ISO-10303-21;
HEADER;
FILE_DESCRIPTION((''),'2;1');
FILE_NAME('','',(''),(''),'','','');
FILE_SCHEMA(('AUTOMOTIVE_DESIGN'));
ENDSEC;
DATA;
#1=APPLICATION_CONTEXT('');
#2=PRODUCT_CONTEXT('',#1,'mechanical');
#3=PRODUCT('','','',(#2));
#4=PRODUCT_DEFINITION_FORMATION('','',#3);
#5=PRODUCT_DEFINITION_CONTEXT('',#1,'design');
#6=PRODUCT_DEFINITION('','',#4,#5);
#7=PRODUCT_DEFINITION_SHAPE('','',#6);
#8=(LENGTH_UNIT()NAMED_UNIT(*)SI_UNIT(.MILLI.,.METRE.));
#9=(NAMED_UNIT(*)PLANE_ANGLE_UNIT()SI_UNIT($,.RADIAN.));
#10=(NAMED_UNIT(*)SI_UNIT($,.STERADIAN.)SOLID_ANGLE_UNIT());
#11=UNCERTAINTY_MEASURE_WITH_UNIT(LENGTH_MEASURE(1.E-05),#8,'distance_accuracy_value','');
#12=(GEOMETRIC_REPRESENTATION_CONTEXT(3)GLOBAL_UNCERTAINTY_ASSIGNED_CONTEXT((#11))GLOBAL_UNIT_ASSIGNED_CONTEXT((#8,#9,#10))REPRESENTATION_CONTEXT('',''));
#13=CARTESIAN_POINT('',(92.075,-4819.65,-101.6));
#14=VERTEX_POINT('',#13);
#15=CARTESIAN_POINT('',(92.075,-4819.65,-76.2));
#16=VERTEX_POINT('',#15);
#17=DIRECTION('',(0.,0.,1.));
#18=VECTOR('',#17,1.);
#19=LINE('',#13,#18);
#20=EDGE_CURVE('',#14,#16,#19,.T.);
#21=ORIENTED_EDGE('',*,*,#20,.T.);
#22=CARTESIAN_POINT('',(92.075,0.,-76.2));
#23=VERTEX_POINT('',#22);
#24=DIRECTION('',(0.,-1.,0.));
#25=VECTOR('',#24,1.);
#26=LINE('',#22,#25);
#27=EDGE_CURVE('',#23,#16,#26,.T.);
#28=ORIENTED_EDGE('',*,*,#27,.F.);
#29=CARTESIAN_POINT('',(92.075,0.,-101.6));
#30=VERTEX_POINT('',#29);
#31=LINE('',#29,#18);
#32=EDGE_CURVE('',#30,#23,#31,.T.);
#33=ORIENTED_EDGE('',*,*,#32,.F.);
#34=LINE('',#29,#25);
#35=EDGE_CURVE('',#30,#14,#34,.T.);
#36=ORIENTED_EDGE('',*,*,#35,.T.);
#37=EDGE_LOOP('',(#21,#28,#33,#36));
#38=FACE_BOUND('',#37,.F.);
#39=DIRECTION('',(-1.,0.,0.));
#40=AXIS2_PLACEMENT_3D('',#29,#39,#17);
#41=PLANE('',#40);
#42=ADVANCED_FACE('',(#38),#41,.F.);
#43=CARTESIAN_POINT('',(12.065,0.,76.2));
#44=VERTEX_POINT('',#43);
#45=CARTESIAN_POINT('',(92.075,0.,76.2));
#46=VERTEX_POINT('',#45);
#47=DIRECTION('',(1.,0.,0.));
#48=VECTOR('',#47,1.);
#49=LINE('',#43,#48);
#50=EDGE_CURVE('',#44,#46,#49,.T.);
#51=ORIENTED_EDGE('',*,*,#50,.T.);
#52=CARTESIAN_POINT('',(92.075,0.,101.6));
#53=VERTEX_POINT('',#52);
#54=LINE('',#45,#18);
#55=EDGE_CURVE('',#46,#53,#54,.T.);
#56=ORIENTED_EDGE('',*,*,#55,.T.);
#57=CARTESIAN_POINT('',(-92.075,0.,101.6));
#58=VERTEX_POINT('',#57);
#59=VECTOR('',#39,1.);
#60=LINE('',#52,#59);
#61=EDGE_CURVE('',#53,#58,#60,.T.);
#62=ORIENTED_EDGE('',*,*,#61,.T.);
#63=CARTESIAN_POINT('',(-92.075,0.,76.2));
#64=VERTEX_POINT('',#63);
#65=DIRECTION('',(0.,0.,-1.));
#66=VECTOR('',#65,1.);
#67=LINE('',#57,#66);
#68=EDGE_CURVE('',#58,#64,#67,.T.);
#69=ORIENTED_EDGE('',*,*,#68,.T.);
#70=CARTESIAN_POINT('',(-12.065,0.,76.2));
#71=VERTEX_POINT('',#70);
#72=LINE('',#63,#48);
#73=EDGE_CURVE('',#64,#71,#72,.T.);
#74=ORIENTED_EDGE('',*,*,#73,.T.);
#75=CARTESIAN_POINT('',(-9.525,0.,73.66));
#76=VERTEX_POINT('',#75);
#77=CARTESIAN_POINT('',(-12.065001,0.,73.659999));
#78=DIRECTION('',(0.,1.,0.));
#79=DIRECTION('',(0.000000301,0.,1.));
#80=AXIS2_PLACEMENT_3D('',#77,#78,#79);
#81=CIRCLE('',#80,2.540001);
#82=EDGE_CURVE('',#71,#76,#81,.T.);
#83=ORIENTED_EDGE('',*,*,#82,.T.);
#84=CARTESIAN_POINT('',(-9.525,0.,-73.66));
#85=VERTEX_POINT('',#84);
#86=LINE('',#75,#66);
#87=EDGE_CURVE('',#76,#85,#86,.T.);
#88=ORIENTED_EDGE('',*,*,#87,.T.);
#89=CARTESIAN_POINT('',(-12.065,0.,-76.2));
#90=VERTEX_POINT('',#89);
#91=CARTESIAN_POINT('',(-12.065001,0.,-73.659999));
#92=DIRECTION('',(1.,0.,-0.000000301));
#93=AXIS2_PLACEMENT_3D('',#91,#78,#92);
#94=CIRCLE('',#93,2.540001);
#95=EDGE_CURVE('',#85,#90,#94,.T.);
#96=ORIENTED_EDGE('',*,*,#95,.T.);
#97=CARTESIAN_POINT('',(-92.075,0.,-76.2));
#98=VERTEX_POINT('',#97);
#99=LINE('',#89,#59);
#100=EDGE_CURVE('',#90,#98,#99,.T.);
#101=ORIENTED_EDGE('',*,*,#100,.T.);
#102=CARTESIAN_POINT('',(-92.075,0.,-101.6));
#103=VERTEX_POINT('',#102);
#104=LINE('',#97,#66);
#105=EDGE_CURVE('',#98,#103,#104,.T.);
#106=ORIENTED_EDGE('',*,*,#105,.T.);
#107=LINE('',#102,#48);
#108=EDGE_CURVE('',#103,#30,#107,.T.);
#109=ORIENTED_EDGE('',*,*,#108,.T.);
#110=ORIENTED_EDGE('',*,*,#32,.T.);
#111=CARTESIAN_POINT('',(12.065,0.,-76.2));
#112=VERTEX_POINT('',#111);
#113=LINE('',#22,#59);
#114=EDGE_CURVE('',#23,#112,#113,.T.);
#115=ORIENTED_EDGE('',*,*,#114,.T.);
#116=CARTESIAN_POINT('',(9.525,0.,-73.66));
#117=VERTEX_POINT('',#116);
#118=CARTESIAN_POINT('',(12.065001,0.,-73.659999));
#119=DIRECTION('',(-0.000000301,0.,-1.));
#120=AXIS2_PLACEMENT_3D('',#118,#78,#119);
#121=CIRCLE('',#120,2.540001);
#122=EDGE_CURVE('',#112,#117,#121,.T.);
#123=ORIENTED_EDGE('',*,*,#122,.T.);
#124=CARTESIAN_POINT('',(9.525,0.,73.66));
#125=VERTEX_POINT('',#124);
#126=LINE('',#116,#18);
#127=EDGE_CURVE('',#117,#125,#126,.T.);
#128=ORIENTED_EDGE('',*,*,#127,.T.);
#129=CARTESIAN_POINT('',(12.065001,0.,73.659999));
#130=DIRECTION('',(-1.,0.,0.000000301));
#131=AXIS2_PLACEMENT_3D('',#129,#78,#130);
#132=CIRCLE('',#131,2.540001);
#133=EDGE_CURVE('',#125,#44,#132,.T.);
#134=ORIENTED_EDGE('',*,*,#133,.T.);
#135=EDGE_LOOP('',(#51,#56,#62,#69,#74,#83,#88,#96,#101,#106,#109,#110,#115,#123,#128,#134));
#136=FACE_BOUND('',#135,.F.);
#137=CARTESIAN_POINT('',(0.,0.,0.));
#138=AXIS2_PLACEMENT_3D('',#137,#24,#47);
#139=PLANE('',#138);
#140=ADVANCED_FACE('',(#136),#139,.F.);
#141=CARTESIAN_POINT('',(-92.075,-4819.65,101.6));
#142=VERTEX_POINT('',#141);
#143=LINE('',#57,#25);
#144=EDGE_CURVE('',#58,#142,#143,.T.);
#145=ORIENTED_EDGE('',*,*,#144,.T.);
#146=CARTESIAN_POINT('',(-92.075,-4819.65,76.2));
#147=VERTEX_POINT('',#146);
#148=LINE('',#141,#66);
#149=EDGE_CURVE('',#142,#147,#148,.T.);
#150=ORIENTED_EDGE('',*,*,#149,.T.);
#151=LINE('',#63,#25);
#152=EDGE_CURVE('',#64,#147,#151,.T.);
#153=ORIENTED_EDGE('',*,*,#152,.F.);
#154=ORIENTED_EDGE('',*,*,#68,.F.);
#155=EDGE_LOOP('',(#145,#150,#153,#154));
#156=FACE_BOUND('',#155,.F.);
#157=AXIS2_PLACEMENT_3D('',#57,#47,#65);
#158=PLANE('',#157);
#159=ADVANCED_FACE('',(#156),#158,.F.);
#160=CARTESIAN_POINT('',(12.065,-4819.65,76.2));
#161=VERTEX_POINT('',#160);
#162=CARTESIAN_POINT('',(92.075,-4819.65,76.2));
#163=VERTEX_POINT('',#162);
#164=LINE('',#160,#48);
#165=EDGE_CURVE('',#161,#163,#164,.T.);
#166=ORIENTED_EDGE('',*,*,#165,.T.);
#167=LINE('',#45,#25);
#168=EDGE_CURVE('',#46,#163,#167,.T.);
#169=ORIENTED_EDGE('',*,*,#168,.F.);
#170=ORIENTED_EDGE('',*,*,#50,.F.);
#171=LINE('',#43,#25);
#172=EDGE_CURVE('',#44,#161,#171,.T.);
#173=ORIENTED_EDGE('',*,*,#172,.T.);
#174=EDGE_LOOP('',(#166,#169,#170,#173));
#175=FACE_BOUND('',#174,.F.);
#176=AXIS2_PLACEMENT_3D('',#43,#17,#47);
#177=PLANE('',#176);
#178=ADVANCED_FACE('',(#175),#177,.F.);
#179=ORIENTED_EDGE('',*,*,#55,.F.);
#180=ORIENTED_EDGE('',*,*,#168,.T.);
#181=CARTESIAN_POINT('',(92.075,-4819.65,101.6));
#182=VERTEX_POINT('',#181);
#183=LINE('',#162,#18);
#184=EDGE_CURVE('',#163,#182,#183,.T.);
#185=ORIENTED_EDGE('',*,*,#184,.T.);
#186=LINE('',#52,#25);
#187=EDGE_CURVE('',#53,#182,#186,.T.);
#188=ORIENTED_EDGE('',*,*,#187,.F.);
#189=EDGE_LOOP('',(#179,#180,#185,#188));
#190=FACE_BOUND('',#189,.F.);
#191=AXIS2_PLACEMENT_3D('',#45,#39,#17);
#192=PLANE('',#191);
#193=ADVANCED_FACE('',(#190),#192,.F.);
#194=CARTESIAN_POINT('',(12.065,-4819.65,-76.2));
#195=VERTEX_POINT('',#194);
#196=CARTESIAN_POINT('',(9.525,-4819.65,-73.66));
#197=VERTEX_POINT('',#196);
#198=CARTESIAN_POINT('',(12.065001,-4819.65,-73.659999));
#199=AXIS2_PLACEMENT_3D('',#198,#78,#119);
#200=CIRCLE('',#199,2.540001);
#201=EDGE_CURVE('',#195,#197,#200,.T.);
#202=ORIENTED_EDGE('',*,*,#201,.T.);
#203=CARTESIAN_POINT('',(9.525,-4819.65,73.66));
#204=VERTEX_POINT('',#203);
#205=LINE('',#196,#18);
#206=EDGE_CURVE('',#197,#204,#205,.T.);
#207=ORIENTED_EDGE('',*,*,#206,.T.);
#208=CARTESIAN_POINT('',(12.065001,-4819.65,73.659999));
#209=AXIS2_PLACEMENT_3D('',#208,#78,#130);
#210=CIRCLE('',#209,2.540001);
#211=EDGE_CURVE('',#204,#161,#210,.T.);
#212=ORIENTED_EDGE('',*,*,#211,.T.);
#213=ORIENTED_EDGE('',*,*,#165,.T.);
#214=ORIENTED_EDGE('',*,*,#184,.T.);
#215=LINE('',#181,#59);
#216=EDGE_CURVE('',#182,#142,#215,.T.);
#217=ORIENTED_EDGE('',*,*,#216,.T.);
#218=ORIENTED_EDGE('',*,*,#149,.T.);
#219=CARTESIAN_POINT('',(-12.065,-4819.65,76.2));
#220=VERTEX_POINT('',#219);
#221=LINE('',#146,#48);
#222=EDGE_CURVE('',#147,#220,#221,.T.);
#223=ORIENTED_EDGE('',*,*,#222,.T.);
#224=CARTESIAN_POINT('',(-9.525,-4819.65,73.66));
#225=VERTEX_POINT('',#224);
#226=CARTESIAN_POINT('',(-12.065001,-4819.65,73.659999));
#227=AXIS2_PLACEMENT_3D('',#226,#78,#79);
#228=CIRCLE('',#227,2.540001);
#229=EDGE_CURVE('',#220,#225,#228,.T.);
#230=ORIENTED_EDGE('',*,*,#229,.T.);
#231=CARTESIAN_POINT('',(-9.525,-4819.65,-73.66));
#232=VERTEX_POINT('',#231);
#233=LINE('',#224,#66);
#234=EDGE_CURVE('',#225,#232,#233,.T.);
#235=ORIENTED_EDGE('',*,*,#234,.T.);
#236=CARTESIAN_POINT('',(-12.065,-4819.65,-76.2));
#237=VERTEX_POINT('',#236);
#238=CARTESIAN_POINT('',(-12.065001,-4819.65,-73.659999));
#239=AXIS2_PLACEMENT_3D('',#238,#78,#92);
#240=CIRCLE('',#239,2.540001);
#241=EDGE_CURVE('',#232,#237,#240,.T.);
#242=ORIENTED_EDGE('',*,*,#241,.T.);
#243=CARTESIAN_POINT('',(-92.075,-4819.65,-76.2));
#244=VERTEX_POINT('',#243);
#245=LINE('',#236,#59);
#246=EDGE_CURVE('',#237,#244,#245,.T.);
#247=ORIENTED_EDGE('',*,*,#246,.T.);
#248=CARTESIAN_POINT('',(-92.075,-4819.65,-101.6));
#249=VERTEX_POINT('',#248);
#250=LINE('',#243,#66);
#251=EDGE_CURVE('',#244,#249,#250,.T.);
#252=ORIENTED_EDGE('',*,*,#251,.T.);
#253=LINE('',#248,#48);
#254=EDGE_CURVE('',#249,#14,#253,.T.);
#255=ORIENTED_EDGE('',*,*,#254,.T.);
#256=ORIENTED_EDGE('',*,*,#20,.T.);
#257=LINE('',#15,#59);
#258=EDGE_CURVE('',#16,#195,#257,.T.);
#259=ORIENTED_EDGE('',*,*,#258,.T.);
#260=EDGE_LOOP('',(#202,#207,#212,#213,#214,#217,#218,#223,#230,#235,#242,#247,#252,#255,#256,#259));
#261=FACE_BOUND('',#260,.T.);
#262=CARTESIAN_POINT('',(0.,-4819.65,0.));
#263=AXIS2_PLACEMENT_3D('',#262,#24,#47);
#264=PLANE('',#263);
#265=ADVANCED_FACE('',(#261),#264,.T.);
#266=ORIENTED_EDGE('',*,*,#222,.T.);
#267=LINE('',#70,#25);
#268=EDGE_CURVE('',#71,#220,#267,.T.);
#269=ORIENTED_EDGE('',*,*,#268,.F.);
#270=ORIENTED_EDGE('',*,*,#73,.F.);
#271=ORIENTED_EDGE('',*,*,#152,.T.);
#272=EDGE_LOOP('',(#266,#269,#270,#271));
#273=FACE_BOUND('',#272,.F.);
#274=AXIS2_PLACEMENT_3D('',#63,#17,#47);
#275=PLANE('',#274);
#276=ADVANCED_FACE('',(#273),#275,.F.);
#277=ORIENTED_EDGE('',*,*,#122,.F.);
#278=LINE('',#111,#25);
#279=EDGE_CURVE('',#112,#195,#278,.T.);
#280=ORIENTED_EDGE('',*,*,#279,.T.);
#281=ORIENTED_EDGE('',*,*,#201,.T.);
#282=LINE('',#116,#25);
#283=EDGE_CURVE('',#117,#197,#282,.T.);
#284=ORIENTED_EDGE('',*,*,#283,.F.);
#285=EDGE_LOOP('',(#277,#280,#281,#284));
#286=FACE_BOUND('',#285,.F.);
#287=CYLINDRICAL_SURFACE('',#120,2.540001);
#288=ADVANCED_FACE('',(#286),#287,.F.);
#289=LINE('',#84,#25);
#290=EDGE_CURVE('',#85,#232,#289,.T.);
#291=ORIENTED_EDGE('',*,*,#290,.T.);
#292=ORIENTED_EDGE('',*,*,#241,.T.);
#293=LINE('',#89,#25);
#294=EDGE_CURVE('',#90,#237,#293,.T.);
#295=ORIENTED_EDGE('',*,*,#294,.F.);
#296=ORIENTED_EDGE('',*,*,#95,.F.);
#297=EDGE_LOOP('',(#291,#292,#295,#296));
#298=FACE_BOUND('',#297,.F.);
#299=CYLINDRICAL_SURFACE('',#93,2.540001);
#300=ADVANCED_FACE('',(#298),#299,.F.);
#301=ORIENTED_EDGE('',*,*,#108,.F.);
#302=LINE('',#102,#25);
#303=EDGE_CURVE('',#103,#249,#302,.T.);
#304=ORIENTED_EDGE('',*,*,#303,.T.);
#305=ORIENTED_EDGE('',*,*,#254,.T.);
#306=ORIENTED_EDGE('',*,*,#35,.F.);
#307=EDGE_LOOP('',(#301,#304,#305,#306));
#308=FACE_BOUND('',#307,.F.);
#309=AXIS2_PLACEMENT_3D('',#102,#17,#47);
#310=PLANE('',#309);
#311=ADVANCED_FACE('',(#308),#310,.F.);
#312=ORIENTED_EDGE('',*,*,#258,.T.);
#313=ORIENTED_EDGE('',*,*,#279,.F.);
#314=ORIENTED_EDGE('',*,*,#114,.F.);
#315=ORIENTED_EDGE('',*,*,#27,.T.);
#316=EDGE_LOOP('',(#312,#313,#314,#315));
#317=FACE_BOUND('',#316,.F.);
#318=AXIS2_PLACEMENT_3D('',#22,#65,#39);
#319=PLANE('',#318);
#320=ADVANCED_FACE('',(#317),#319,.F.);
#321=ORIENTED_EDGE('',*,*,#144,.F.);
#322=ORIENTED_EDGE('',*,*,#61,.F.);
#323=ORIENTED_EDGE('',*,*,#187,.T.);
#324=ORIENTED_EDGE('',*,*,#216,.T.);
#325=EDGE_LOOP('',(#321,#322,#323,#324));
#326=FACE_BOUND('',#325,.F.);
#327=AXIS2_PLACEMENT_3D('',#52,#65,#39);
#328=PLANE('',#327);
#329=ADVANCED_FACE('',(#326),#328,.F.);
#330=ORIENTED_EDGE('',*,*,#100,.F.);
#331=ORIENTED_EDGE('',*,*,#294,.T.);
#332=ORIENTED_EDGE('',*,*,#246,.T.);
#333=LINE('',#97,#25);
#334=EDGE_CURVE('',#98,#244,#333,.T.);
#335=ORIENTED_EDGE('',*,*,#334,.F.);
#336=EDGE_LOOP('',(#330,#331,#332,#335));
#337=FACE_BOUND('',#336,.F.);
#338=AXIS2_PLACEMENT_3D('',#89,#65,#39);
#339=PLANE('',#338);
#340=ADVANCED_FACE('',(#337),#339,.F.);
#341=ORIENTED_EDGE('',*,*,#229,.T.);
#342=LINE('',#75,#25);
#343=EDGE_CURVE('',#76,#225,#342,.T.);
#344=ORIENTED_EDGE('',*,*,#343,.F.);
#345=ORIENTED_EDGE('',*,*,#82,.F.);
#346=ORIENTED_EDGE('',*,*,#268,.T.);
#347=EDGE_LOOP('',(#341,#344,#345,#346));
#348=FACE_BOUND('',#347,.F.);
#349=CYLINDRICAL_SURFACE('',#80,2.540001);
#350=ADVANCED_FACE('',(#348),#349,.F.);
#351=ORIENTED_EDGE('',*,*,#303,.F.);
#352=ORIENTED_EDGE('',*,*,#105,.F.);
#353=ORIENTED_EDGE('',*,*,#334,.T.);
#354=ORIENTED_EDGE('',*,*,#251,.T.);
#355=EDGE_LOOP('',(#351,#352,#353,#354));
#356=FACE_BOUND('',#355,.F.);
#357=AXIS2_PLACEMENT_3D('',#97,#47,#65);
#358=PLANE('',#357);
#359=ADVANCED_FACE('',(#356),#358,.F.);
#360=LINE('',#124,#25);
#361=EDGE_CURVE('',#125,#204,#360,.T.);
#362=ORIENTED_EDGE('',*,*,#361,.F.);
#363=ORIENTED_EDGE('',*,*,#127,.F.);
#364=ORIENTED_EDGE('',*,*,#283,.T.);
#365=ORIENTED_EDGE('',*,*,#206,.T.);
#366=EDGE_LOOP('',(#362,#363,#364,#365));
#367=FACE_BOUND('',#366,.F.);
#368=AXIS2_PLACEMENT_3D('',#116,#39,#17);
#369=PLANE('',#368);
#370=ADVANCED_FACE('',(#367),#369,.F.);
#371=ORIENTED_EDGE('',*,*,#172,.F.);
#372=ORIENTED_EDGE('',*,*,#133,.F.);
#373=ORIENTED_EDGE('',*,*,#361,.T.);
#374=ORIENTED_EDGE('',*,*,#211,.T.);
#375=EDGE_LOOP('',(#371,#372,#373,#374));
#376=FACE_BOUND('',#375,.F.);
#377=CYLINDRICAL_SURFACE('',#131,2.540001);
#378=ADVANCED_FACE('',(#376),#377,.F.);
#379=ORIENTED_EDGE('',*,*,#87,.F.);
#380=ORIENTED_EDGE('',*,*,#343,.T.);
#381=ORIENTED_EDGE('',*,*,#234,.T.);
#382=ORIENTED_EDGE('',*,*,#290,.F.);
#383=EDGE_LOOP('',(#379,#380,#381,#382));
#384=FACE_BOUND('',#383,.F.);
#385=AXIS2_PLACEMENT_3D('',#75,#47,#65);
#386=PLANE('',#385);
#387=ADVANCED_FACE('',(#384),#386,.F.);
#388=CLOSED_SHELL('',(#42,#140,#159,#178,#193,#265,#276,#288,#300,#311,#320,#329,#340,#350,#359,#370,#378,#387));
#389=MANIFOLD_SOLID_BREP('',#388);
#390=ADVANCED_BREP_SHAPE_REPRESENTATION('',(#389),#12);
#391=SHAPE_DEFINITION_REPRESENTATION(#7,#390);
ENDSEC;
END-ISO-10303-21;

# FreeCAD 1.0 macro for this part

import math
import FreeCAD as App
import Part
import Sketcher
Q = App.Units.Quantity

doc = App.newDocument("Part")
params = doc.addObject("Spreadsheet::Sheet", "Params")
for row, (alias, value) in enumerate([
    ("sketch1_radius", "0.1 in"),
    ("sketch1_height", "1 in"),
    ("sketch1_height2", "5.8 in"),
    ("sketch1_width", "3.15 in"),
    ("pad1_length", "189.75 in"),
], start=1):
    params.set(f"A{row}", alias)
    params.set(f"B{row}", "=" + value)
    params.setAlias(f"B{row}", alias)

body = doc.addObject("PartDesign::Body", "Body")

sketch1 = body.newObject("Sketcher::SketchObject", "Sketch")
sketch1.AttachmentSupport = (doc.getObject("XZ_Plane"), [""])
sketch1.MapMode = "FlatFace"
sketch1.addGeometry([
    Part.LineSegment(App.Vector(92.1, -101.6, 0), App.Vector(92.1, -76.2, 0)),
    Part.LineSegment(App.Vector(92.1, -76.2, 0), App.Vector(12.1, -76.2, 0)),
    Part.ArcOfCircle(Part.Circle(App.Vector(12.1, -73.7, 0), App.Vector(0, 0, 1), 2.5), math.radians(-180), math.radians(-90)),
    Part.LineSegment(App.Vector(9.5, -73.7, 0), App.Vector(9.5, 73.7, 0)),
    Part.ArcOfCircle(Part.Circle(App.Vector(12.1, 73.7, 0), App.Vector(0, 0, 1), 2.5), math.radians(90), math.radians(180)),
    Part.LineSegment(App.Vector(12.1, 76.2, 0), App.Vector(92.1, 76.2, 0)),
    Part.LineSegment(App.Vector(92.1, 76.2, 0), App.Vector(92.1, 101.6, 0)),
    Part.LineSegment(App.Vector(92.1, 101.6, 0), App.Vector(-92.1, 101.6, 0)),
    Part.LineSegment(App.Vector(-92.1, 101.6, 0), App.Vector(-92.1, 76.2, 0)),
    Part.LineSegment(App.Vector(-92.1, 76.2, 0), App.Vector(-12.1, 76.2, 0)),
    Part.ArcOfCircle(Part.Circle(App.Vector(-12.1, 73.7, 0), App.Vector(0, 0, 1), 2.5), math.radians(0), math.radians(90)),
    Part.LineSegment(App.Vector(-9.5, 73.7, 0), App.Vector(-9.5, -73.7, 0)),
    Part.ArcOfCircle(Part.Circle(App.Vector(-12.1, -73.7, 0), App.Vector(0, 0, 1), 2.5), math.radians(-90), math.radians(0)),
    Part.LineSegment(App.Vector(-12.1, -76.2, 0), App.Vector(-92.1, -76.2, 0)),
    Part.LineSegment(App.Vector(-92.1, -76.2, 0), App.Vector(-92.1, -101.6, 0)),
    Part.LineSegment(App.Vector(-92.1, -101.6, 0), App.Vector(92.1, -101.6, 0)),
], False)
sketch1.addConstraint([
    Sketcher.Constraint("Coincident", 0, 2, 1, 1),
    Sketcher.Constraint("Tangent", 1, 2, 2, 2),
    Sketcher.Constraint("Tangent", 2, 1, 3, 1),
    Sketcher.Constraint("Tangent", 3, 2, 4, 2),
    Sketcher.Constraint("Tangent", 4, 1, 5, 1),
    Sketcher.Constraint("Coincident", 5, 2, 6, 1),
    Sketcher.Constraint("Coincident", 6, 2, 7, 1),
    Sketcher.Constraint("Coincident", 7, 2, 8, 1),
    Sketcher.Constraint("Coincident", 8, 2, 9, 1),
    Sketcher.Constraint("Tangent", 9, 2, 10, 2),
    Sketcher.Constraint("Tangent", 10, 1, 11, 1),
    Sketcher.Constraint("Tangent", 11, 2, 12, 2),
    Sketcher.Constraint("Tangent", 12, 1, 13, 1),
    Sketcher.Constraint("Coincident", 13, 2, 14, 1),
    Sketcher.Constraint("Coincident", 14, 2, 15, 1),
    Sketcher.Constraint("Coincident", 15, 2, 0, 1),
    Sketcher.Constraint("Vertical", 0),
    Sketcher.Constraint("Horizontal", 1),
    Sketcher.Constraint("Vertical", 3),
    Sketcher.Constraint("Horizontal", 5),
    Sketcher.Constraint("Vertical", 6),
    Sketcher.Constraint("Horizontal", 7),
    Sketcher.Constraint("Vertical", 8),
    Sketcher.Constraint("Horizontal", 9),
    Sketcher.Constraint("Vertical", 11),
    Sketcher.Constraint("Horizontal", 13),
    Sketcher.Constraint("Vertical", 14),
    Sketcher.Constraint("Horizontal", 15),
    Sketcher.Constraint("Equal", 2, 4),
    Sketcher.Constraint("Equal", 4, 10),
    Sketcher.Constraint("Equal", 10, 12),
    Sketcher.Constraint("Symmetric", 2, 3, 10, 3, -1, 1),
    Sketcher.Constraint("Symmetric", 5, 2, 13, 2, -1, 1),
    Sketcher.Constraint("Symmetric", 7, 2, 15, 2, -1, 1),
    Sketcher.Constraint("Symmetric", 5, 2, 8, 2, -2),
    Sketcher.Constraint("Radius", 2, Q("0.1 in")),
    Sketcher.Constraint("DistanceY", 0, 1, 0, 2, Q("1 in")),
    Sketcher.Constraint("DistanceY", 3, 1, 3, 2, Q("5.8 in")),
    Sketcher.Constraint("DistanceX", 7, 2, 3, 2, Q("4 in")),
    Sketcher.Constraint("DistanceX", 1, 2, 1, 1, Q("3.15 in")),
])
sketch1.setExpression("Constraints[35]", "Params.sketch1_radius")
sketch1.setExpression("Constraints[36]", "Params.sketch1_height")
sketch1.setExpression("Constraints[37]", "Params.sketch1_height2")
sketch1.setExpression("Constraints[39]", "Params.sketch1_width")
pad1 = body.newObject("PartDesign::Pad", "Pad")
pad1.Profile = sketch1
pad1.setExpression("Length", "Params.pad1_length")

doc.recompute()
